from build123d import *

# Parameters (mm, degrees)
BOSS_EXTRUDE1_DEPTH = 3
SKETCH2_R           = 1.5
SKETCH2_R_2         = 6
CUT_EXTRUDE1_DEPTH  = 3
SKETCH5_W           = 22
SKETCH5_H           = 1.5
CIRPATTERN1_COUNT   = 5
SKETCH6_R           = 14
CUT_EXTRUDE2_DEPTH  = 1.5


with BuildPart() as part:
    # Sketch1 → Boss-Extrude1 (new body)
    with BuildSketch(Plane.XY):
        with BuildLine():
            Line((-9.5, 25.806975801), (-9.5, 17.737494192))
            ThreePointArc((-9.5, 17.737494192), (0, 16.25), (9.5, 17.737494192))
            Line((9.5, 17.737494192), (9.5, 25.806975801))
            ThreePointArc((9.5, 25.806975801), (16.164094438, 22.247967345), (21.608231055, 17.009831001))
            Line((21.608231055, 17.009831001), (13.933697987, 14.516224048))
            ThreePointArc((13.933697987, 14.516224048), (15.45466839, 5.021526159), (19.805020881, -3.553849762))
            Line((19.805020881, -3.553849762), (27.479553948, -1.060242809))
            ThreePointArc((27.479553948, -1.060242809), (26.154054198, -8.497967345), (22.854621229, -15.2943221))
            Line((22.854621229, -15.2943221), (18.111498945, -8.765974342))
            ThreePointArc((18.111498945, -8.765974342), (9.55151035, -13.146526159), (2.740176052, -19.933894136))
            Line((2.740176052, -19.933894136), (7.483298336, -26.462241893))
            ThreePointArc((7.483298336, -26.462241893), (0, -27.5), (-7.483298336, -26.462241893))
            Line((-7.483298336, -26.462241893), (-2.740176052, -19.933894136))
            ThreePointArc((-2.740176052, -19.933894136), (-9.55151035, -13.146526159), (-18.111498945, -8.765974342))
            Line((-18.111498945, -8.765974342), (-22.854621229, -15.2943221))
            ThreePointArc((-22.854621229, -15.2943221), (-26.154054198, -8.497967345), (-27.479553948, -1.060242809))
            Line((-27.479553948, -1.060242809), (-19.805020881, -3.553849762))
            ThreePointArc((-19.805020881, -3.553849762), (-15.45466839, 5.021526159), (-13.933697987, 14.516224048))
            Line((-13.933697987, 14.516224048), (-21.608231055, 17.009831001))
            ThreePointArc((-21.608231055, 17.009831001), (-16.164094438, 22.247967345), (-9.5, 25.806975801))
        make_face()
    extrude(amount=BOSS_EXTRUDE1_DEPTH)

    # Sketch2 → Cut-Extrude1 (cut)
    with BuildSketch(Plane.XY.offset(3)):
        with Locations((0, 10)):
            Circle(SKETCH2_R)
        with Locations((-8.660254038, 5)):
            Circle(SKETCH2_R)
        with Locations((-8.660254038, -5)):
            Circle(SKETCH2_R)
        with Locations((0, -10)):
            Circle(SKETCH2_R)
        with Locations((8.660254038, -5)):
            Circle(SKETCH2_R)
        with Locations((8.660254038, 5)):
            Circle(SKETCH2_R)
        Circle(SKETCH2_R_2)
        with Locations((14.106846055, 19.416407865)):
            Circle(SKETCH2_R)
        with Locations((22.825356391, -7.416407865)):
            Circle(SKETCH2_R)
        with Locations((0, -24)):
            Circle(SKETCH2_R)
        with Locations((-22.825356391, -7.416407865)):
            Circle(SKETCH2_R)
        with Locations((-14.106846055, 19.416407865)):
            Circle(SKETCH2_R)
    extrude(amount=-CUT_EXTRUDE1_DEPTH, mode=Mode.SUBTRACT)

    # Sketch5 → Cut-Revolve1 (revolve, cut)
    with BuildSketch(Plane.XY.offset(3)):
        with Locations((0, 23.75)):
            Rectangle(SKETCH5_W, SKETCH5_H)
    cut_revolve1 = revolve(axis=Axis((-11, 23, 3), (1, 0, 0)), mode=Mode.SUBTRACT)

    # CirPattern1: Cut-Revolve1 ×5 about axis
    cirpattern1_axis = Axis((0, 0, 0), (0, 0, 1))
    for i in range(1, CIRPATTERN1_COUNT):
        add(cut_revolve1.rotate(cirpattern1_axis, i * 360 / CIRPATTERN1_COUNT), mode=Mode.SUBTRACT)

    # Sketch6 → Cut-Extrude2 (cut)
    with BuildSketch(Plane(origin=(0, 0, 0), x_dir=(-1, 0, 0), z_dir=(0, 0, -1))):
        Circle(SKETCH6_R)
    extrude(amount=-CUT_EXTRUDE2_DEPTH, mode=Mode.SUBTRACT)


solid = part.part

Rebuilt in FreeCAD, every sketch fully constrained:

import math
import FreeCAD as App
import Part
import Sketcher

doc = App.newDocument("Part")
body = doc.addObject("PartDesign::Body", "Body")

# Sketch on XY plane
sketch1 = body.newObject("Sketcher::SketchObject", "Sketch")
sketch1.AttachmentSupport = (doc.getObject("XY_Plane"), [""])
sketch1.MapMode = "FlatFace"
sketch1.addGeometry([
    Part.LineSegment(App.Vector(-9.5, 17.737494, 0), App.Vector(-9.5, 25.806976, 0)),  # 0
    Part.ArcOfCircle(Part.Circle(App.Vector(0, 0, 0), App.Vector(0, 0, 1), 27.5), math.radians(110.209545), math.radians(141.790455)),  # 1
    Part.LineSegment(App.Vector(-21.608231, 17.009831, 0), App.Vector(-13.933698, 14.516224, 0)),  # 2
    Part.ArcOfCircle(Part.Circle(App.Vector(-45.013505, 14.625774, 0), App.Vector(0, 0, 1), 31.08), math.radians(-35.798044), math.radians(-0.201956)),  # 3
    Part.LineSegment(App.Vector(-19.805021, -3.55385, 0), App.Vector(-27.479554, -1.060243, 0)),  # 4
    Part.ArcOfCircle(Part.Circle(App.Vector(0, 0, 0), App.Vector(0, 0, 1), 27.5), math.radians(-177.790455), math.radians(-146.209545)),  # 5
    Part.LineSegment(App.Vector(-22.854621, -15.294322, 0), App.Vector(-18.111499, -8.765974, 0)),  # 6
    Part.ArcOfCircle(Part.Circle(App.Vector(-27.819876, -38.290774, 0), App.Vector(0, 0, 1), 31.08), math.radians(36.201956), math.radians(71.798044)),  # 7
    Part.LineSegment(App.Vector(-2.740176, -19.933894, 0), App.Vector(-7.483298, -26.462242, 0)),  # 8
    Part.ArcOfCircle(Part.Circle(App.Vector(0, 0, 0), App.Vector(0, 0, 1), 27.5), math.radians(-105.790455), math.radians(-74.209545)),  # 9
    Part.LineSegment(App.Vector(7.483298, -26.462242, 0), App.Vector(2.740176, -19.933894, 0)),  # 10
    Part.ArcOfCircle(Part.Circle(App.Vector(27.819876, -38.290774, 0), App.Vector(0, 0, 1), 31.08), math.radians(108.201956), math.radians(143.798044)),  # 11
    Part.LineSegment(App.Vector(18.111499, -8.765974, 0), App.Vector(22.854621, -15.294322, 0)),  # 12
    Part.ArcOfCircle(Part.Circle(App.Vector(0, 0, 0), App.Vector(0, 0, 1), 27.5), math.radians(-33.790455), math.radians(-2.209545)),  # 13
    Part.LineSegment(App.Vector(27.479554, -1.060243, 0), App.Vector(19.805021, -3.55385, 0)),  # 14
    Part.ArcOfCircle(Part.Circle(App.Vector(45.013505, 14.625774, 0), App.Vector(0, 0, 1), 31.08), math.radians(-179.798044), math.radians(-144.201956)),  # 15
    Part.LineSegment(App.Vector(13.933698, 14.516224, 0), App.Vector(21.608231, 17.009831, 0)),  # 16
    Part.ArcOfCircle(Part.Circle(App.Vector(0, 0, 0), App.Vector(0, 0, 1), 27.5), math.radians(38.209545), math.radians(69.790455)),  # 17
    Part.LineSegment(App.Vector(9.5, 25.806976, 0), App.Vector(9.5, 17.737494, 0)),  # 18
    Part.ArcOfCircle(Part.Circle(App.Vector(0, 47.33, 0), App.Vector(0, 0, 1), 31.08), math.radians(-107.798044), math.radians(-72.201956)),  # 19
], False)
sketch1.addConstraint([
    Sketcher.Constraint("Coincident", 0, 2, 1, 1),
    Sketcher.Constraint("Coincident", 1, 2, 2, 1),
    Sketcher.Constraint("Coincident", 2, 2, 3, 2),
    Sketcher.Constraint("Coincident", 3, 1, 4, 1),
    Sketcher.Constraint("Coincident", 4, 2, 5, 1),
    Sketcher.Constraint("Coincident", 5, 2, 6, 1),
    Sketcher.Constraint("Coincident", 6, 2, 7, 2),
    Sketcher.Constraint("Coincident", 7, 1, 8, 1),
    Sketcher.Constraint("Coincident", 8, 2, 9, 1),
    Sketcher.Constraint("Coincident", 9, 2, 10, 1),
    Sketcher.Constraint("Coincident", 10, 2, 11, 2),
    Sketcher.Constraint("Coincident", 11, 1, 12, 1),
    Sketcher.Constraint("Coincident", 12, 2, 13, 1),
    Sketcher.Constraint("Coincident", 13, 2, 14, 1),
    Sketcher.Constraint("Coincident", 14, 2, 15, 2),
    Sketcher.Constraint("Coincident", 15, 1, 16, 1),
    Sketcher.Constraint("Coincident", 16, 2, 17, 1),
    Sketcher.Constraint("Coincident", 17, 2, 18, 1),
    Sketcher.Constraint("Coincident", 18, 2, 19, 2),
    Sketcher.Constraint("Coincident", 19, 1, 0, 1),
    Sketcher.Constraint("Vertical", 0),
    Sketcher.Constraint("Vertical", 18),
    Sketcher.Constraint("Coincident", 1, 3, -1, 1),
    Sketcher.Constraint("Coincident", 5, 3, -1, 1),
    Sketcher.Constraint("Coincident", 9, 3, -1, 1),
    Sketcher.Constraint("Coincident", 13, 3, -1, 1),
    Sketcher.Constraint("Coincident", 17, 3, -1, 1),
    Sketcher.Constraint("PointOnObject", 19, 3, -2),
    Sketcher.Constraint("Radius", 1, 27.5),
    Sketcher.Constraint("Radius", 5, 27.5),
    Sketcher.Constraint("Radius", 9, 27.5),
    Sketcher.Constraint("Radius", 13, 27.5),
    Sketcher.Constraint("Radius", 17, 27.5),
    Sketcher.Constraint("Radius", 3, 31.08),
    Sketcher.Constraint("Radius", 7, 31.08),
    Sketcher.Constraint("Radius", 11, 31.08),
    Sketcher.Constraint("Radius", 15, 31.08),
    Sketcher.Constraint("Radius", 19, 31.08),
    Sketcher.Constraint("DistanceX", 0, 2, 17, 2, 19.0),
    Sketcher.Constraint("DistanceX", 0, 2, -1, 1, 9.5),
    Sketcher.Constraint("DistanceY", -1, 1, 19, 3, 47.33),
    Sketcher.Constraint("DistanceX", 6, 2, -1, 1, 18.111499),
    Sketcher.Constraint("DistanceX", 8, 2, -1, 1, 7.483298),
    Sketcher.Constraint("DistanceX", -1, 1, 9, 2, 7.483298),
    Sketcher.Constraint("DistanceX", -1, 1, 11, 1, 18.111499),
    Sketcher.Constraint("DistanceX", 5, 2, 3, 1, 3.0496),
    Sketcher.Constraint("DistanceX", 14, 2, 12, 2, 3.0496),
    Sketcher.Constraint("Distance", 2, 8.069482),
    Sketcher.Constraint("Distance", 4, 8.069482),
    Sketcher.Constraint("Distance", 6, 8.069482),
    Sketcher.Constraint("Distance", 8, 8.069482),
    Sketcher.Constraint("Distance", 10, 8.069482),
    Sketcher.Constraint("Distance", 12, 8.069482),
    Sketcher.Constraint("Distance", 14, 8.069482),
    Sketcher.Constraint("Distance", 16, 8.069482),
    Sketcher.Constraint("DistanceX", 1, 2, -1, 1, 21.608231),
    Sketcher.Constraint("DistanceX", 3, 1, -1, 1, 19.805021),
    Sketcher.Constraint("DistanceY", 3, 1, -1, 1, 3.55385),
    Sketcher.Constraint("DistanceX", -1, 1, 12, 2, 22.854621),
    Sketcher.Constraint("DistanceY", 14, 2, -1, 1, 3.55385),
    Sketcher.Constraint("DistanceX", -1, 1, 16, 2, 21.608231),
    Sketcher.Constraint("DistanceX", 3, 3, 7, 3, 17.193629),
    Sketcher.Constraint("DistanceY", 7, 3, 3, 3, 52.916549),
    Sketcher.Constraint("DistanceX", 7, 3, 11, 3, 55.639752),
    Sketcher.Constraint("DistanceX", 11, 3, 15, 3, 17.193629),
])
pad1 = body.newObject("PartDesign::Pad", "Pad")
pad1.Profile = sketch1
pad1.Length = 3

# Sketch on XY plane
sketch2 = body.newObject("Sketcher::SketchObject", "Sketch001")
sketch2.AttachmentSupport = (doc.getObject("XY_Plane"), [""])
sketch2.MapMode = "FlatFace"
sketch2.AttachmentOffset = App.Placement(App.Vector(0, 0, 3), App.Rotation())
sketch2.addGeometry([
    Part.Circle(App.Vector(0, 10, 0), App.Vector(0, 0, 1), 1.5),  # 0
    Part.Circle(App.Vector(-8.660254, 5, 0), App.Vector(0, 0, 1), 1.5),  # 1
    Part.Circle(App.Vector(-8.660254, -5, 0), App.Vector(0, 0, 1), 1.5),  # 2
    Part.Circle(App.Vector(0, -10, 0), App.Vector(0, 0, 1), 1.5),  # 3
    Part.Circle(App.Vector(8.660254, -5, 0), App.Vector(0, 0, 1), 1.5),  # 4
    Part.Circle(App.Vector(8.660254, 5, 0), App.Vector(0, 0, 1), 1.5),  # 5
    Part.Circle(App.Vector(0, 0, 0), App.Vector(0, 0, 1), 6),  # 6
    Part.Circle(App.Vector(14.106846, 19.416408, 0), App.Vector(0, 0, 1), 1.5),  # 7
    Part.Circle(App.Vector(22.825356, -7.416408, 0), App.Vector(0, 0, 1), 1.5),  # 8
    Part.Circle(App.Vector(0, -24, 0), App.Vector(0, 0, 1), 1.5),  # 9
    Part.Circle(App.Vector(-22.825356, -7.416408, 0), App.Vector(0, 0, 1), 1.5),  # 10
    Part.Circle(App.Vector(-14.106846, 19.416408, 0), App.Vector(0, 0, 1), 1.5),  # 11
], False)
sketch2.addConstraint([
    Sketcher.Constraint("Coincident", 6, 3, -1, 1),
    Sketcher.Constraint("Equal", 0, 1),
    Sketcher.Constraint("Equal", 1, 2),
    Sketcher.Constraint("Equal", 2, 3),
    Sketcher.Constraint("Equal", 3, 4),
    Sketcher.Constraint("Equal", 4, 5),
    Sketcher.Constraint("Equal", 5, 7),
    Sketcher.Constraint("Equal", 7, 8),
    Sketcher.Constraint("Equal", 8, 9),
    Sketcher.Constraint("Equal", 9, 10),
    Sketcher.Constraint("Equal", 10, 11),
    Sketcher.Constraint("Symmetric", 0, 3, 3, 3, -1, 1),
    Sketcher.Constraint("Symmetric", 1, 3, 4, 3, -1, 1),
    Sketcher.Constraint("Symmetric", 2, 3, 5, 3, -1, 1),
    Sketcher.Constraint("Symmetric", 2, 3, 4, 3, -2),
    Sketcher.Constraint("Symmetric", 8, 3, 10, 3, -2),
    Sketcher.Constraint("Symmetric", 7, 3, 11, 3, -2),
    Sketcher.Constraint("PointOnObject", 0, 3, -2),
    Sketcher.Constraint("PointOnObject", 9, 3, -2),
    Sketcher.Constraint("Diameter", 0, 3.0),
    Sketcher.Constraint("Diameter", 6, 12.0),
    Sketcher.Constraint("DistanceY", -1, 1, 0, 3, 10.0),
    Sketcher.Constraint("DistanceY", -1, 1, 1, 3, 5.0),
    Sketcher.Constraint("DistanceY", 9, 3, -1, 1, 24.0),
    Sketcher.Constraint("DistanceX", 1, 3, 7, 3, 22.7671),
    Sketcher.Constraint("DistanceX", 2, 3, 4, 3, 17.320508),
    Sketcher.Constraint("DistanceX", 7, 3, 8, 3, 8.71851),
    Sketcher.Constraint("DistanceY", -1, 1, 7, 3, 19.416408),
    Sketcher.Constraint("DistanceY", 8, 3, -1, 1, 7.416408),
])
pocket1 = body.newObject("PartDesign::Pocket", "Pocket")
pocket1.Profile = sketch2
pocket1.Length = 3

# Sketch on XY plane
sketch3 = body.newObject("Sketcher::SketchObject", "Sketch002")
sketch3.AttachmentSupport = (doc.getObject("XY_Plane"), [""])
sketch3.MapMode = "FlatFace"
sketch3.AttachmentOffset = App.Placement(App.Vector(0, 0, 3), App.Rotation())
sketch3.addGeometry([
    Part.LineSegment(App.Vector(-11, 24.5, 0), App.Vector(-11, 23, 0)),
    Part.LineSegment(App.Vector(-11, 23, 0), App.Vector(11, 23, 0)),
    Part.LineSegment(App.Vector(11, 23, 0), App.Vector(11, 24.5, 0)),
    Part.LineSegment(App.Vector(11, 24.5, 0), App.Vector(-11, 24.5, 0)),
], False)
sketch3.addGeometry(Part.LineSegment(App.Vector(-11, 23, 0), App.Vector(11, 23, 0)), True)  # axis
sketch3.addConstraint([
    Sketcher.Constraint("Coincident", 0, 2, 1, 1),
    Sketcher.Constraint("Coincident", 1, 2, 2, 1),
    Sketcher.Constraint("Coincident", 2, 2, 3, 1),
    Sketcher.Constraint("Coincident", 3, 2, 0, 1),
    Sketcher.Constraint("Vertical", 0),
    Sketcher.Constraint("Horizontal", 1),
    Sketcher.Constraint("Vertical", 2),
    Sketcher.Constraint("Horizontal", 3),
    Sketcher.Constraint("Horizontal", 4),
    Sketcher.Constraint("Coincident", 4, 1, 0, 2),
    Sketcher.Constraint("Vertical", 2, 2, 4, 2),
    Sketcher.Constraint("DistanceX", 1, 1, 1, 2, 22.0),
    Sketcher.Constraint("DistanceY", 0, 2, 0, 1, 1.5),
    Sketcher.Constraint("DistanceX", 0, 2, -1, 1, 11.0),
    Sketcher.Constraint("DistanceY", -1, 1, 0, 2, 23.0),
])
groove = body.newObject("PartDesign::Groove", "Groove")
groove.Profile = sketch3
groove.ReferenceAxis = (sketch3, ["Axis0"])
groove.Angle = 360
doc.recompute()

polarpattern = body.newObject("PartDesign::PolarPattern", "PolarPattern")
polarpattern.Originals = [groove]
polarpattern.Axis = (doc.getObject("Z_Axis"), [""])
polarpattern.Angle = 360
polarpattern.Occurrences = 5
body.Tip = polarpattern

# Sketch on XY plane
sketch4 = body.newObject("Sketcher::SketchObject", "Sketch003")
sketch4.AttachmentSupport = (doc.getObject("XY_Plane"), [""])
sketch4.MapMode = "FlatFace"
sketch4.addGeometry(Part.Circle(App.Vector(0, 0, 0), App.Vector(0, 0, 1), 14), False)
sketch4.addConstraint([
    Sketcher.Constraint("Coincident", 0, 3, -1, 1),
    Sketcher.Constraint("Diameter", 0, 28.0),
])
pocket2 = body.newObject("PartDesign::Pocket", "Pocket001")
pocket2.Profile = sketch4
pocket2.Length = 1.5
pocket2.Reversed = True

doc.recompute()
